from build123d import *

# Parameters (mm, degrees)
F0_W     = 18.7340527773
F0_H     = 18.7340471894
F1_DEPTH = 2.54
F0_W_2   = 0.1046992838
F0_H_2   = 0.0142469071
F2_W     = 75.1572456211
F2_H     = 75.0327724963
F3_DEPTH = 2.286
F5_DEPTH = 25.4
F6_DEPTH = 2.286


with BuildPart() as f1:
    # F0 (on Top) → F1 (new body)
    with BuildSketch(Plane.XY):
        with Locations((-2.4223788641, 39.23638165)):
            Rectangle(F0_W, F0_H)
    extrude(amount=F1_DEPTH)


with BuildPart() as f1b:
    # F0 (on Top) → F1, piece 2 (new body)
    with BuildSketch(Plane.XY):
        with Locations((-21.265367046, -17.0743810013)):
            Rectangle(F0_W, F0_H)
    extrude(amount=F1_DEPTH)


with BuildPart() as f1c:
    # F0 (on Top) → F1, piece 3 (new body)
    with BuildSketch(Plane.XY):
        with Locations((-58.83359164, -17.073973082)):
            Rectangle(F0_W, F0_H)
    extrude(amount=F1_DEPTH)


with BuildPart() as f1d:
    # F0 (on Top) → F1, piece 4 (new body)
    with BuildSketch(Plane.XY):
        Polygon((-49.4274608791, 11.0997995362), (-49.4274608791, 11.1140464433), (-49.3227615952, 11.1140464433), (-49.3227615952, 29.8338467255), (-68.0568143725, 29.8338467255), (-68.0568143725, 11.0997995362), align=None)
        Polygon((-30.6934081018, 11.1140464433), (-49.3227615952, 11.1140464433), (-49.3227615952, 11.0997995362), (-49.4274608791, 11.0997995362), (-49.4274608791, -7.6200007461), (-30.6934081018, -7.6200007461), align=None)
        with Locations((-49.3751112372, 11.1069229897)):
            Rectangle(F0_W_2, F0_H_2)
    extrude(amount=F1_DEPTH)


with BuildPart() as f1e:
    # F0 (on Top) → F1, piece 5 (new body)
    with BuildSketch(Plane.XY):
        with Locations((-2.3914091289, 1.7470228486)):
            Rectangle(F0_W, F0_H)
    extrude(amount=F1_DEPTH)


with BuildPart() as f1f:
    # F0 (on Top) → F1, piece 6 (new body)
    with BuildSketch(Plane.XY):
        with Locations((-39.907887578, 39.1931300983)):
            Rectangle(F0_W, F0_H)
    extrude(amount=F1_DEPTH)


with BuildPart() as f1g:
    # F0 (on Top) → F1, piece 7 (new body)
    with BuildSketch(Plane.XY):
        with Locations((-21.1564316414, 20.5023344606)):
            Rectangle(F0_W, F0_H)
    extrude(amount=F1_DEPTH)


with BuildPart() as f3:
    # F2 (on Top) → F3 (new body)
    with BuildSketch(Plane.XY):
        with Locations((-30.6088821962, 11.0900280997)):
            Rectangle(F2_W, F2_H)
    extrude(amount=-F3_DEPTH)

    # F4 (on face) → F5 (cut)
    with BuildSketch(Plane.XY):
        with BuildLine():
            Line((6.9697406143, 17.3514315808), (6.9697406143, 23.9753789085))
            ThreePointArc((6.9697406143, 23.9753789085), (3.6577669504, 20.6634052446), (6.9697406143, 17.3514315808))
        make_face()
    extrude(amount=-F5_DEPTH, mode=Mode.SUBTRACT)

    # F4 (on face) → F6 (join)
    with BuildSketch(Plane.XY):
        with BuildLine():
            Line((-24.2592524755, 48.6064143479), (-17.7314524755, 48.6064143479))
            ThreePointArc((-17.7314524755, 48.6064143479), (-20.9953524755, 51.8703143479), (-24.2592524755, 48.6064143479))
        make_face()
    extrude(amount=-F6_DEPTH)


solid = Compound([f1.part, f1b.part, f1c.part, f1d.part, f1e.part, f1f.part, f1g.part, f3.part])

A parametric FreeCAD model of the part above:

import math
import FreeCAD as App
import Part
import Sketcher

V = App.Vector
Q = App.Units.Quantity


def add_polygon(sketch, points):
    """Adds a closed chain of lines whose ends are joined by coincident constraints."""
    first, n = sketch.GeometryCount, len(points)
    for a, b in zip(points, points[1:] + points[:1]):
        sketch.addGeometry(Part.LineSegment(App.Vector(*a, 0), App.Vector(*b, 0)), False)
    for i in range(n):
        sketch.addConstraint(Sketcher.Constraint("Coincident", first + i, 2, first + (i + 1) % n, 1))

doc = App.newDocument("Part")
body = doc.addObject("PartDesign::Body", "Body")

sketch1 = doc.addObject("Sketcher::SketchObject", "Sketch")
body.addObject(sketch1)
sketch1.AttachmentSupport = (doc.XY_Plane, [""])
sketch1.MapMode = "FlatFace"
add_polygon(sketch1, [(-12, 49), (-12, 30), (7, 30), (7, 49)])
sketch1.addConstraint([
    Sketcher.Constraint("Vertical", 0),
    Sketcher.Constraint("Horizontal", 1),
    Sketcher.Constraint("Vertical", 2),
    Sketcher.Constraint("Horizontal", 3),
    Sketcher.Constraint("DistanceX", 1, 1, 1, 2, 18.734053),
    Sketcher.Constraint("DistanceY", 0, 2, 0, 1, 18.734047),
    Sketcher.Constraint("DistanceY", -1, 1, 0, 2, 29.869358),
    Sketcher.Constraint("DistanceX", 0, 2, -1, 1, 11.789405),
])
pad1 = doc.addObject("PartDesign::Pad", "Pad")
body.addObject(pad1)
pad1.Profile = sketch1
pad1.Length = Q("0.1 in")
body2 = doc.addObject("PartDesign::Body", "Body001")

sketch2 = doc.addObject("Sketcher::SketchObject", "Sketch001")
body2.addObject(sketch2)
sketch2.AttachmentSupport = (doc.getObject("XY_Plane001"), [""])
sketch2.MapMode = "FlatFace"
add_polygon(sketch2, [(-31, -8), (-31, -26), (-12, -26), (-12, -8)])
sketch2.addConstraint([
    Sketcher.Constraint("Vertical", 0),
    Sketcher.Constraint("Horizontal", 1),
    Sketcher.Constraint("Vertical", 2),
    Sketcher.Constraint("Horizontal", 3),
    Sketcher.Constraint("DistanceY", 0, 2, -1, 1, Q("1.0410002 in")),
    Sketcher.Constraint("DistanceX", 1, 1, 1, 2, 18.734053),
    Sketcher.Constraint("DistanceY", 0, 2, 0, 1, 18.734047),
    Sketcher.Constraint("DistanceX", 1, 2, -1, 1, 11.898341),
])
pad2 = doc.addObject("PartDesign::Pad", "Pad001")
body2.addObject(pad2)
pad2.Profile = sketch2
pad2.Length = Q("0.1 in")
body3 = doc.addObject("PartDesign::Body", "Body002")

sketch3 = doc.addObject("Sketcher::SketchObject", "Sketch002")
body3.addObject(sketch3)
sketch3.AttachmentSupport = (doc.getObject("XY_Plane002"), [""])
sketch3.MapMode = "FlatFace"
add_polygon(sketch3, [(-68, -8), (-68, -26), (-49, -26), (-49, -8)])
sketch3.addConstraint([
    Sketcher.Constraint("Vertical", 0),
    Sketcher.Constraint("Horizontal", 1),
    Sketcher.Constraint("Vertical", 2),
    Sketcher.Constraint("Horizontal", 3),
    Sketcher.Constraint("DistanceX", 1, 1, 1, 2, 18.734053),
    Sketcher.Constraint("DistanceY", 0, 2, 0, 1, 18.734047),
    Sketcher.Constraint("DistanceX", 0, 2, -1, 1, 68.200618),
    Sketcher.Constraint("DistanceY", 2, 2, -1, 1, 7.706949),
])
pad3 = doc.addObject("PartDesign::Pad", "Pad002")
body3.addObject(pad3)
pad3.Profile = sketch3
pad3.Length = Q("0.1 in")
body4 = doc.addObject("PartDesign::Body", "Body003")

sketch4 = doc.addObject("Sketcher::SketchObject", "Sketch003")
body4.addObject(sketch4)
sketch4.AttachmentSupport = (doc.getObject("XY_Plane003"), [""])
sketch4.MapMode = "FlatFace"
add_polygon(sketch4, [(-49, 11), (-49, 30), (-68, 30), (-68, 11), (-49, 11), (-49, -8), (-31, -8), (-31, 11)])
sketch4.addConstraint([
    Sketcher.Constraint("Vertical", 0),
    Sketcher.Constraint("Horizontal", 1),
    Sketcher.Constraint("Vertical", 2),
    Sketcher.Constraint("Horizontal", 3),
    Sketcher.Constraint("Vertical", 4),
    Sketcher.Constraint("Horizontal", 5),
    Sketcher.Constraint("Vertical", 6),
    Sketcher.Constraint("Horizontal", 7),
    Sketcher.Constraint("Equal", 1, 5),
    Sketcher.Constraint("Equal", 0, 4),
    Sketcher.Constraint("DistanceY", 4, 2, -1, 1, Q("0.3 in")),
    Sketcher.Constraint("DistanceY", 0, 1, 0, 2, Q("0.737 in")),
    Sketcher.Constraint("DistanceX", 3, 2, 0, 2, 0.104699),
    Sketcher.Constraint("DistanceX", 1, 2, 1, 1, 18.734053),
    Sketcher.Constraint("DistanceY", 2, 2, 2, 1, 18.734047),
    Sketcher.Constraint("DistanceX", 0, 2, -1, 1, 49.322762),
])
pad4 = doc.addObject("PartDesign::Pad", "Pad003")
body4.addObject(pad4)
pad4.Profile = sketch4
pad4.Length = Q("0.1 in")
body5 = doc.addObject("PartDesign::Body", "Body004")

sketch5 = doc.addObject("Sketcher::SketchObject", "Sketch004")
body5.addObject(sketch5)
sketch5.AttachmentSupport = (doc.getObject("XY_Plane004"), [""])
sketch5.MapMode = "FlatFace"
add_polygon(sketch5, [(-12, 11), (-12, -8), (7, -8), (7, 11)])
sketch5.addConstraint([
    Sketcher.Constraint("Vertical", 0),
    Sketcher.Constraint("Horizontal", 1),
    Sketcher.Constraint("Vertical", 2),
    Sketcher.Constraint("Horizontal", 3),
    Sketcher.Constraint("DistanceY", 0, 2, -1, 1, Q("0.3 in")),
    Sketcher.Constraint("DistanceX", 1, 1, 1, 2, 18.734053),
    Sketcher.Constraint("DistanceY", 0, 2, 0, 1, 18.734047),
    Sketcher.Constraint("DistanceX", 0, 2, -1, 1, 11.758436),
])
pad5 = doc.addObject("PartDesign::Pad", "Pad004")
body5.addObject(pad5)
pad5.Profile = sketch5
pad5.Length = Q("0.1 in")
body6 = doc.addObject("PartDesign::Body", "Body005")

sketch6 = doc.addObject("Sketcher::SketchObject", "Sketch005")
body6.addObject(sketch6)
sketch6.AttachmentSupport = (doc.getObject("XY_Plane005"), [""])
sketch6.MapMode = "FlatFace"
add_polygon(sketch6, [(-49, 49), (-49, 30), (-31, 30), (-31, 49)])
sketch6.addConstraint([
    Sketcher.Constraint("Vertical", 0),
    Sketcher.Constraint("Horizontal", 1),
    Sketcher.Constraint("Vertical", 2),
    Sketcher.Constraint("Horizontal", 3),
    Sketcher.Constraint("DistanceX", 1, 1, 1, 2, 18.734053),
    Sketcher.Constraint("DistanceY", 0, 2, 0, 1, 18.734047),
    Sketcher.Constraint("DistanceX", 1, 2, -1, 1, 30.540861),
    Sketcher.Constraint("DistanceY", -1, 1, 0, 2, 29.826107),
])
pad6 = doc.addObject("PartDesign::Pad", "Pad005")
body6.addObject(pad6)
pad6.Profile = sketch6
pad6.Length = Q("0.1 in")
body7 = doc.addObject("PartDesign::Body", "Body006")

sketch7 = doc.addObject("Sketcher::SketchObject", "Sketch006")
body7.addObject(sketch7)
sketch7.AttachmentSupport = (doc.getObject("XY_Plane006"), [""])
sketch7.MapMode = "FlatFace"
add_polygon(sketch7, [(-31, 30), (-31, 11), (-12, 11), (-12, 30)])
sketch7.addConstraint([
    Sketcher.Constraint("Vertical", 0),
    Sketcher.Constraint("Horizontal", 1),
    Sketcher.Constraint("Vertical", 2),
    Sketcher.Constraint("Horizontal", 3),
    Sketcher.Constraint("DistanceX", 1, 1, 1, 2, 18.734053),
    Sketcher.Constraint("DistanceY", 0, 2, 0, 1, 18.734047),
    Sketcher.Constraint("DistanceX", 0, 2, -1, 1, 30.523458),
    Sketcher.Constraint("DistanceY", -1, 1, 0, 2, 11.135311),
])
pad7 = doc.addObject("PartDesign::Pad", "Pad006")
body7.addObject(pad7)
pad7.Profile = sketch7
pad7.Length = Q("0.1 in")
body8 = doc.addObject("PartDesign::Body", "Body007")

sketch8 = doc.addObject("Sketcher::SketchObject", "Sketch007")
body8.addObject(sketch8)
sketch8.AttachmentSupport = (doc.getObject("XY_Plane007"), [""])
sketch8.MapMode = "FlatFace"
add_polygon(sketch8, [(-68, 49), (-68, -26), (7, -26), (7, 49)])
sketch8.addConstraint([
    Sketcher.Constraint("Vertical", 0),
    Sketcher.Constraint("Horizontal", 1),
    Sketcher.Constraint("Vertical", 2),
    Sketcher.Constraint("Horizontal", 3),
    Sketcher.Constraint("DistanceX", 1, 1, 1, 2, 75.157246),
    Sketcher.Constraint("DistanceY", 0, 2, 0, 1, 75.032772),
    Sketcher.Constraint("DistanceY", 0, 2, -1, 1, 26.426358),
    Sketcher.Constraint("DistanceX", -1, 1, 1, 2, 6.969741),
])
pad8 = doc.addObject("PartDesign::Pad", "Pad007")
body8.addObject(pad8)
pad8.Profile = sketch8
pad8.Length = Q("0.09 in")
pad8.Reversed = True

sketch9 = doc.addObject("Sketcher::SketchObject", "Sketch008")
body8.addObject(sketch9)
sketch9.AttachmentSupport = (doc.getObject("XY_Plane007"), [""])
sketch9.MapMode = "FlatFace"
sketch9.addGeometry([
    Part.LineSegment(V(7, 17.4, 0), V(7, 24, 0)),
    Part.ArcOfCircle(Part.Circle(V(7, 20.7, 0), V(0, 0, 1), 3.3), math.radians(90), math.radians(270)),
], False)
sketch9.addConstraint([
    Sketcher.Constraint("Coincident", 0, 1, 1, 2),
    Sketcher.Constraint("Coincident", 1, 1, 0, 2),
    Sketcher.Constraint("Vertical", 0),
    Sketcher.Constraint("Vertical", 1, 3, 0, 1),
    Sketcher.Constraint("Radius", 1, 3.311974),
    Sketcher.Constraint("DistanceX", -1, 1, 1, 3, 6.969741),
    Sketcher.Constraint("DistanceY", -1, 1, 0, 1, 17.351432),
])
pocket1 = doc.addObject("PartDesign::Pocket", "Pocket")
body8.addObject(pocket1)
pocket1.Profile = sketch9
pocket1.Length = Q("1 in")

sketch10 = doc.addObject("Sketcher::SketchObject", "Sketch009")
body8.addObject(sketch10)
sketch10.AttachmentSupport = (doc.getObject("XY_Plane007"), [""])
sketch10.MapMode = "FlatFace"
sketch10.addGeometry([
    Part.LineSegment(V(-24.3, 48.6, 0), V(-17.7, 48.6, 0)),
    Part.ArcOfCircle(Part.Circle(V(-21, 48.6, 0), V(0, 0, 1), 3.3), math.radians(0), math.radians(180)),
], False)
sketch10.addConstraint([
    Sketcher.Constraint("Coincident", 0, 1, 1, 2),
    Sketcher.Constraint("Coincident", 1, 1, 0, 2),
    Sketcher.Constraint("Horizontal", 0),
    Sketcher.Constraint("Horizontal", 1, 3, 0, 1),
    Sketcher.Constraint("Radius", 1, Q("0.1285 in")),
    Sketcher.Constraint("DistanceX", 1, 3, -1, 1, 20.995352),
    Sketcher.Constraint("DistanceY", -1, 1, 1, 3, 48.606414),
])
pad9 = doc.addObject("PartDesign::Pad", "Pad008")
body8.addObject(pad9)
pad9.Profile = sketch10
pad9.Length = Q("0.09 in")
pad9.Reversed = True

doc.recompute()
